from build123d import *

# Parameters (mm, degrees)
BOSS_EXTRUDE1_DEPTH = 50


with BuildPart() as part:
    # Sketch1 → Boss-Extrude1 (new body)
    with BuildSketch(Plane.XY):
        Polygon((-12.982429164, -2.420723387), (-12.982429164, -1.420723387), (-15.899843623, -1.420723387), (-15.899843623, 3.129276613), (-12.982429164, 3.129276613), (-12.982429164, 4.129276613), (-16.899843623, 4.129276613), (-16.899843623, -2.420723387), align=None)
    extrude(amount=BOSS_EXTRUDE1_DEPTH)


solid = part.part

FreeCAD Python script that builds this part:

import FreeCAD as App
import Part
import Sketcher

V = App.Vector


def add_polygon(sketch, points):
    """Adds a closed chain of lines whose ends are joined by coincident constraints."""
    first, n = sketch.GeometryCount, len(points)
    for a, b in zip(points, points[1:] + points[:1]):
        sketch.addGeometry(Part.LineSegment(App.Vector(*a, 0), App.Vector(*b, 0)), False)
    for i in range(n):
        sketch.addConstraint(Sketcher.Constraint("Coincident", first + i, 2, first + (i + 1) % n, 1))

doc = App.newDocument("Part")
body = doc.addObject("PartDesign::Body", "Body")

sketch1 = body.newObject("Sketcher::SketchObject", "Sketch")
sketch1.AttachmentSupport = (doc.getObject("XY_Plane"), [""])
sketch1.MapMode = "FlatFace"
add_polygon(sketch1, [(-13, -2.4), (-13, -1.4), (-15.9, -1.4), (-15.9, 3.1), (-13, 3.1), (-13, 4.1), (-16.9, 4.1), (-16.9, -2.4)])
sketch1.addConstraint(Sketcher.Constraint("Vertical", 0))
sketch1.addConstraint(Sketcher.Constraint("Horizontal", 1))
sketch1.addConstraint(Sketcher.Constraint("Vertical", 2))
sketch1.addConstraint(Sketcher.Constraint("Horizontal", 3))
sketch1.addConstraint(Sketcher.Constraint("Vertical", 4))
sketch1.addConstraint(Sketcher.Constraint("Horizontal", 5))
sketch1.addConstraint(Sketcher.Constraint("Vertical", 6))
sketch1.addConstraint(Sketcher.Constraint("Horizontal", 7))
sketch1.addConstraint(Sketcher.Constraint("Vertical", 0, 2, 3, 2))
sketch1.addConstraint(Sketcher.Constraint("Equal", 0, 4))
sketch1.addConstraint(Sketcher.Constraint("DistanceY", 0, 1, 0, 2, 1.0))
sketch1.addConstraint(Sketcher.Constraint("DistanceX", 5, 2, 2, 2, 1.0))
sketch1.addConstraint(Sketcher.Constraint("DistanceY", 2, 1, 2, 2, 4.55))
sketch1.addConstraint(Sketcher.Constraint("DistanceX", 1, 2, 1, 1, 2.917414))
sketch1.addConstraint(Sketcher.Constraint("DistanceX", 0, 2, -1, 1, 12.982429))
sketch1.addConstraint(Sketcher.Constraint("DistanceY", 0, 2, -1, 1, 1.420723))
pad1 = body.newObject("PartDesign::Pad", "Pad")
pad1.Profile = sketch1
pad1.Length = 50

doc.recompute()
